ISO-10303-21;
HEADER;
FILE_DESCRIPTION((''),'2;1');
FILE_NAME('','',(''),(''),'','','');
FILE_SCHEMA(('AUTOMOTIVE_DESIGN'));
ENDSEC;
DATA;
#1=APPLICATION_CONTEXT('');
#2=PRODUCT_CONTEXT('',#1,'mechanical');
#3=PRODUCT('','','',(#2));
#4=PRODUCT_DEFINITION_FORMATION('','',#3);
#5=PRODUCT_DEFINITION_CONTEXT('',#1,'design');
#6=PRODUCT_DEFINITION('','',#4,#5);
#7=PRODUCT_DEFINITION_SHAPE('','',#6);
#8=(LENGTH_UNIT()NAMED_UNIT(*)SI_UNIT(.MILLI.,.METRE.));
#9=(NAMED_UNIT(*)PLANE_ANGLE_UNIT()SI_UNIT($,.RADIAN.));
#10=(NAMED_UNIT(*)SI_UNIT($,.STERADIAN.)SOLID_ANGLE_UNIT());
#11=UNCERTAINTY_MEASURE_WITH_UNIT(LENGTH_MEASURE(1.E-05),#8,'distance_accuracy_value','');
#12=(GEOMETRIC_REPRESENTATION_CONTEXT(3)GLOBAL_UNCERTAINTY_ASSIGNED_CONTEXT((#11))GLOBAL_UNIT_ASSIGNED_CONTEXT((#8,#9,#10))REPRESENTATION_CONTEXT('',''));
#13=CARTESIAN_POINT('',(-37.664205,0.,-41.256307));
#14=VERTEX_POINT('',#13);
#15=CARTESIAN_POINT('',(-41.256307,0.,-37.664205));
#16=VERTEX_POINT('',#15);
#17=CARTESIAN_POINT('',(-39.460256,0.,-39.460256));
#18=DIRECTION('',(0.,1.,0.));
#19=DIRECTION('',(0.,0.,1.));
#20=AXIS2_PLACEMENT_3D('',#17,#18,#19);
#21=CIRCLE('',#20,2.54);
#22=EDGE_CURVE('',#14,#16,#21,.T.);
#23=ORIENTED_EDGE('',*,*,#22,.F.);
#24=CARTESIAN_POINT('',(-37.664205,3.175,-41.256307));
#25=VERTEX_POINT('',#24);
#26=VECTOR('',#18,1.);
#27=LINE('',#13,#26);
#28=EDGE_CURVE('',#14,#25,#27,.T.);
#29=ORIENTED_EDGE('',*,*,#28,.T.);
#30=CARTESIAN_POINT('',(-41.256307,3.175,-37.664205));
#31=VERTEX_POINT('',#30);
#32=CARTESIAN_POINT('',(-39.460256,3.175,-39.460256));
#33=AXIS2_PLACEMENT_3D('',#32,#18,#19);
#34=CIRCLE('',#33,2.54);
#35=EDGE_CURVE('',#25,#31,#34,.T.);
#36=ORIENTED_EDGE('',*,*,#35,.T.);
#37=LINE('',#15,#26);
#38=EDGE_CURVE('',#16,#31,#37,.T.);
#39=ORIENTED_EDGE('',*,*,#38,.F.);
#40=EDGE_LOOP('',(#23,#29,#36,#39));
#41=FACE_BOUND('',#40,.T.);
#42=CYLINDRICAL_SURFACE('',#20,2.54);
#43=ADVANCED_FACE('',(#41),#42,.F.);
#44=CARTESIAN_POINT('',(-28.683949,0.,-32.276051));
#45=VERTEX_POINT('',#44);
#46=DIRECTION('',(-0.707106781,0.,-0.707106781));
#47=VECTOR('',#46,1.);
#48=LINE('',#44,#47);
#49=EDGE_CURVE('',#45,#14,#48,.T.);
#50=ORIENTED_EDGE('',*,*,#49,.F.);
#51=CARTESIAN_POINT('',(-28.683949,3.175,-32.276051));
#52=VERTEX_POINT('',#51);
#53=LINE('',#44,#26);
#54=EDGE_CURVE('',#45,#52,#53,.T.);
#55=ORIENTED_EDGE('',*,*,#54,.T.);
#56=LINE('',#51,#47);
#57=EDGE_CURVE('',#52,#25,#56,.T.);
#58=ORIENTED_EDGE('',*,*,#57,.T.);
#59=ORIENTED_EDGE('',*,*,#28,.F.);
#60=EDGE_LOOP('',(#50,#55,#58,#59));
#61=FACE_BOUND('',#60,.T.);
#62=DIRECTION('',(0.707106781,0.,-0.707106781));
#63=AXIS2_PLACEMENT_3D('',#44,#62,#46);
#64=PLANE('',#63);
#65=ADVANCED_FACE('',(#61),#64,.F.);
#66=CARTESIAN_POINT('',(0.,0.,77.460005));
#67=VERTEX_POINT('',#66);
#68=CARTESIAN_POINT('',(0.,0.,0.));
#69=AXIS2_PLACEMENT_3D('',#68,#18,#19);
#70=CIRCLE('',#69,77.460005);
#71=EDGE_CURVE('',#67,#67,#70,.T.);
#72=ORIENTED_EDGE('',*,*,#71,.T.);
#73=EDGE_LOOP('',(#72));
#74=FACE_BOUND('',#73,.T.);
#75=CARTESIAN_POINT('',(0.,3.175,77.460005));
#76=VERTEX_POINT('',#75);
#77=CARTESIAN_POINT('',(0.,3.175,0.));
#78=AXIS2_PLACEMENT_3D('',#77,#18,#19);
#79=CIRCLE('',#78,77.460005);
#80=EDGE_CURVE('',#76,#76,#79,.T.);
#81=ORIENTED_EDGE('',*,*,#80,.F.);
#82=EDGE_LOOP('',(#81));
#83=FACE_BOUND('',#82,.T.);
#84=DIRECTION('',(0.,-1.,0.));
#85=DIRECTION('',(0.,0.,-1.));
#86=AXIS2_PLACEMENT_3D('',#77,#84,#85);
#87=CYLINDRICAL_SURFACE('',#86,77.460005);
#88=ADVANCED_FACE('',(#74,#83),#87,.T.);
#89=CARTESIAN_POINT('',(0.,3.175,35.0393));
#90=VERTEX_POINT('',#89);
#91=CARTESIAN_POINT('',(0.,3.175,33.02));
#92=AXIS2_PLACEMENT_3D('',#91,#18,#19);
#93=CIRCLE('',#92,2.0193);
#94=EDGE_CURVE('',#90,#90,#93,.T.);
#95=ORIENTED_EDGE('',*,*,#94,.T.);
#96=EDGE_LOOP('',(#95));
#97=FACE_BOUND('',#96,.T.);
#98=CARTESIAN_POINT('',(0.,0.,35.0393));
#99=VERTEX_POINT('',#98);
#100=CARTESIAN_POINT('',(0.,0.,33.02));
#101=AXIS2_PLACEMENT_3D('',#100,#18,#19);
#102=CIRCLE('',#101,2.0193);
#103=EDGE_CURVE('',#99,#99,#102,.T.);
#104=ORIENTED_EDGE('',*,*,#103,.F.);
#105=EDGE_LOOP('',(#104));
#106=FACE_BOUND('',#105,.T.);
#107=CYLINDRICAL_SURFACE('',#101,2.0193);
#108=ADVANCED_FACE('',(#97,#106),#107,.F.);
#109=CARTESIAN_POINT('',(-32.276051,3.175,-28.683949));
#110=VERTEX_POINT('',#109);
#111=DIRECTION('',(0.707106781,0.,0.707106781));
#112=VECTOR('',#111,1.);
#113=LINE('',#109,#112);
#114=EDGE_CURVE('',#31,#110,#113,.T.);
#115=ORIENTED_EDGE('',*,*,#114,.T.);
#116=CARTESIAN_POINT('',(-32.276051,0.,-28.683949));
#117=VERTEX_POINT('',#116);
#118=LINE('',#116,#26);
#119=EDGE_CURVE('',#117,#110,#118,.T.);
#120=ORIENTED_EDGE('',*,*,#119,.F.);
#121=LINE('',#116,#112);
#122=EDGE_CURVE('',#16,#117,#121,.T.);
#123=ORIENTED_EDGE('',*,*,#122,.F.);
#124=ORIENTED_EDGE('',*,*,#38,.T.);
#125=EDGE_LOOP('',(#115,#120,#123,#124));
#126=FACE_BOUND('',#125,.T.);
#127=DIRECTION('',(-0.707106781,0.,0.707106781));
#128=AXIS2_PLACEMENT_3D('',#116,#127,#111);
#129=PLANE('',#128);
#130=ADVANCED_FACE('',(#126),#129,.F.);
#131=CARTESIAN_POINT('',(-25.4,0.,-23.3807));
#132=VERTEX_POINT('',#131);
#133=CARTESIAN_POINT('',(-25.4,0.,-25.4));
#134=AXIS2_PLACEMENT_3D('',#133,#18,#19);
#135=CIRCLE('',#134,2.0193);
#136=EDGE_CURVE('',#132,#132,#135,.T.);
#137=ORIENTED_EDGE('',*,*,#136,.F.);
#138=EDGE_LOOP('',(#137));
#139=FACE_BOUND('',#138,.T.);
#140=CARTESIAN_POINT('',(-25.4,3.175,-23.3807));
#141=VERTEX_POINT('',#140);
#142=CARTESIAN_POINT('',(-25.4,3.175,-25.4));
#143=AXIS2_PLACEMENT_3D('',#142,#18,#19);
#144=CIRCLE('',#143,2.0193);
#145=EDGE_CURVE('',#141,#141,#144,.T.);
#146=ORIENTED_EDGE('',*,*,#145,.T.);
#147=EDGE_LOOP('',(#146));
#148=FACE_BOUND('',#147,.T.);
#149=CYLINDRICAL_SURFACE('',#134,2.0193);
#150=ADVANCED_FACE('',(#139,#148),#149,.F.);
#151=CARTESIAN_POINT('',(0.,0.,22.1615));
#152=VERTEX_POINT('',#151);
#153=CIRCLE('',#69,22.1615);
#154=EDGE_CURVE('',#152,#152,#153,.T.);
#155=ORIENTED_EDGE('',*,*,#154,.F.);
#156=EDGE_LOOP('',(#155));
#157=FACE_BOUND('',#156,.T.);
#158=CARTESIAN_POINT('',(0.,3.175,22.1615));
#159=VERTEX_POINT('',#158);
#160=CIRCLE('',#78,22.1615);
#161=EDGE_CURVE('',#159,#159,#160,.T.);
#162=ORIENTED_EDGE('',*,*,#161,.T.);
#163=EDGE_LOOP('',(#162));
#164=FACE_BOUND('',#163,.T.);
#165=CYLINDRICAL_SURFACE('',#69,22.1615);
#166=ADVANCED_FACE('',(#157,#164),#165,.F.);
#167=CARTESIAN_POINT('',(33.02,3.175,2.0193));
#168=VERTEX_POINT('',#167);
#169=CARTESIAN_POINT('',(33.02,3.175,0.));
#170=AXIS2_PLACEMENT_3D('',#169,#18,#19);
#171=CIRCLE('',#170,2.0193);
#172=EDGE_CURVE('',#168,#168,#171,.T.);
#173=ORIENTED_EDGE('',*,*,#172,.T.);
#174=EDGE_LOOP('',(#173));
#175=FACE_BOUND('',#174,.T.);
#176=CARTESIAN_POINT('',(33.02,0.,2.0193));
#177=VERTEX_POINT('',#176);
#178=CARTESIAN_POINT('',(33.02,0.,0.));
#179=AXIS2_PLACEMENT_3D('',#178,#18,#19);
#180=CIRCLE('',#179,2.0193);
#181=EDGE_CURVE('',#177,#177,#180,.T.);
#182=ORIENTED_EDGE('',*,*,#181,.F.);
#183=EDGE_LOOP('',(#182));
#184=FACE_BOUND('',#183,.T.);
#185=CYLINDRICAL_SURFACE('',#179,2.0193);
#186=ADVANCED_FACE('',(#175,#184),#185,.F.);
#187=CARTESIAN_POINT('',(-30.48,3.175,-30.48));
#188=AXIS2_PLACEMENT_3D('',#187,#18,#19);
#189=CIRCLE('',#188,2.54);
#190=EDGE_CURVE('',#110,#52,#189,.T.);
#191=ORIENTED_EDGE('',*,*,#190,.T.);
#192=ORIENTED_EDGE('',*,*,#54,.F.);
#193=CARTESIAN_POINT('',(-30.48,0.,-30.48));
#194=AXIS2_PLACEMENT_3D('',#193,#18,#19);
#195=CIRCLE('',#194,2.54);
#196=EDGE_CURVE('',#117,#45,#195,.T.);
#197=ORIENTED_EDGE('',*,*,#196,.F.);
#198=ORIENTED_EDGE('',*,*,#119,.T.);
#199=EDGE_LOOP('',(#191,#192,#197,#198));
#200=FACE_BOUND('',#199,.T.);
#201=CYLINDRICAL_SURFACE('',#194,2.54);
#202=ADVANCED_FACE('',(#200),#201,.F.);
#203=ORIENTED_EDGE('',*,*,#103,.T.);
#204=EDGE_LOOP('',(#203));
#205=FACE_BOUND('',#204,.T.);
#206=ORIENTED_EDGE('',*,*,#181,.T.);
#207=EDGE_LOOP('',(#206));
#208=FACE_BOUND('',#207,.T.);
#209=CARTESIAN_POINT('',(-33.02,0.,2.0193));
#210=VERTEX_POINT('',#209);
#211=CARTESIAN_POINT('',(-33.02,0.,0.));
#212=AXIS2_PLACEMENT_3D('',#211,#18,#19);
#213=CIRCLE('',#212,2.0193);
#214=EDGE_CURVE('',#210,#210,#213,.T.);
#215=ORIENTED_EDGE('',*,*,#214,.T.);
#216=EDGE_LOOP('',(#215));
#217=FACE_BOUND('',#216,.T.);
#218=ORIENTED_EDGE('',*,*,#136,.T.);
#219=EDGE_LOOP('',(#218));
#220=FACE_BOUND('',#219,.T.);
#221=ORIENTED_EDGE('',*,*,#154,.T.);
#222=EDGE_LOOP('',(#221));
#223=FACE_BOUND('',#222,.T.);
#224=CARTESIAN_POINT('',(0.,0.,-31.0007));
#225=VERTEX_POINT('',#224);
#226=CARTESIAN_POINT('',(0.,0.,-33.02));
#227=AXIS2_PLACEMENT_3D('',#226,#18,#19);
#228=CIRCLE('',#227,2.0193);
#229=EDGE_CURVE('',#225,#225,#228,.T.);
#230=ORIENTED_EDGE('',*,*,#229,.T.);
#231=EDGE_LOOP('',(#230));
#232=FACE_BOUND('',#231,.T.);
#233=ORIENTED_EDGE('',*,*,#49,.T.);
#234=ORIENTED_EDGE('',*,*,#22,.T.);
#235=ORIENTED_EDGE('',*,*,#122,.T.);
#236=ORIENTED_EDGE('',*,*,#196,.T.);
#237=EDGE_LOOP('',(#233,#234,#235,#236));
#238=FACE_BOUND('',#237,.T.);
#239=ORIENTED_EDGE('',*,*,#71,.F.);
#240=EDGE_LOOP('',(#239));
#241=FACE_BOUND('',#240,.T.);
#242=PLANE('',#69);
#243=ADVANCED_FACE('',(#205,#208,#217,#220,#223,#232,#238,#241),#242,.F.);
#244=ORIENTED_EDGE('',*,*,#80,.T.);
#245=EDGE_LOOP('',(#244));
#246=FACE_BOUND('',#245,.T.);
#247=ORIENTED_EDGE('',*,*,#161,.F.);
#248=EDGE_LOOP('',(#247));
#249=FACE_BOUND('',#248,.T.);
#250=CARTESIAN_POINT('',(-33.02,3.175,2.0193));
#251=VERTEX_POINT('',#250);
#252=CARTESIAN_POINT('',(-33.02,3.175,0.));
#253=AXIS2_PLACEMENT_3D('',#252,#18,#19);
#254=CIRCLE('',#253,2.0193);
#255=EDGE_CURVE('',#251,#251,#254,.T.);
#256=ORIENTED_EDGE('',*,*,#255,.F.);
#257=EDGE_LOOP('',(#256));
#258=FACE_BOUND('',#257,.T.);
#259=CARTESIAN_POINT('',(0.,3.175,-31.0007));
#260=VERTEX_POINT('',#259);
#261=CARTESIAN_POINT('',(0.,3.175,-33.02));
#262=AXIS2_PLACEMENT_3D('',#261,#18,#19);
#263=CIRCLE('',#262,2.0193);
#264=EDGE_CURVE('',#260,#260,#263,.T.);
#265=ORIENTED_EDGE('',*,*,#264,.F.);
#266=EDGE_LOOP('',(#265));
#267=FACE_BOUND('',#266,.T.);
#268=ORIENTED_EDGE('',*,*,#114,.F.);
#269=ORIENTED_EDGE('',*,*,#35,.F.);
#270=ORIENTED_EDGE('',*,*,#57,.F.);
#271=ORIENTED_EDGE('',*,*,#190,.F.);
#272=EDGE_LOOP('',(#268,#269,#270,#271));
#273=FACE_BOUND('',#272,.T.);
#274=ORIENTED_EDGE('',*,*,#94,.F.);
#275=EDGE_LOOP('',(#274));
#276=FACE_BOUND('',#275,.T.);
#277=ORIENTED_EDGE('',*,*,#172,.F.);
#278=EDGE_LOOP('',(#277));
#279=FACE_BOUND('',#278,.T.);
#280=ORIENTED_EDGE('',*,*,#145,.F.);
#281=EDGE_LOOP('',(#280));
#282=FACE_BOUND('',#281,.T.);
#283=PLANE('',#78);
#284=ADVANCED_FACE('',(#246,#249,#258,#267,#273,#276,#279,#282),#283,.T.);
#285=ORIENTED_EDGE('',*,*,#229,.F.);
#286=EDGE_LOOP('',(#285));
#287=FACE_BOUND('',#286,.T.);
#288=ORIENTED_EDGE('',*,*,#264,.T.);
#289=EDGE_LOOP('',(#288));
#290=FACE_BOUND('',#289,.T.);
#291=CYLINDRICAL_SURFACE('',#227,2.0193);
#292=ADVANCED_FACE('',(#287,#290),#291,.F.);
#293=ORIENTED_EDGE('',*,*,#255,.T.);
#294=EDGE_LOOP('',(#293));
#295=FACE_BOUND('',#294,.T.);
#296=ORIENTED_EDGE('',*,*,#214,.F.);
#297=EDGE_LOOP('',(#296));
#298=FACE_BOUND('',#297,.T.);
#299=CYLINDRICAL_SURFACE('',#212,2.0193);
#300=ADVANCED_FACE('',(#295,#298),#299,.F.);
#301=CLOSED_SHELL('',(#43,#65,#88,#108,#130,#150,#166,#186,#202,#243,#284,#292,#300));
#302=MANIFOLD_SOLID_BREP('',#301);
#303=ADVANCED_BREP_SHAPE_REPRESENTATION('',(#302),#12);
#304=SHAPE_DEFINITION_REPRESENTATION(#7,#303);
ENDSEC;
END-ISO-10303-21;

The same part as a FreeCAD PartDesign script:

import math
import FreeCAD as App
import Part
import Sketcher

V = App.Vector
Q = App.Units.Quantity

doc = App.newDocument("Part")
body = doc.addObject("PartDesign::Body", "Body")

# Sketch on XZ plane
sketch1 = body.newObject("Sketcher::SketchObject", "Sketch")
sketch1.AttachmentSupport = (doc.getObject("XZ_Plane"), [""])
sketch1.MapMode = "FlatFace"
sketch1.addGeometry(Part.Circle(V(0, 0, 0), V(0, 0, 1), 77), False)
sketch1.addConstraint(Sketcher.Constraint("Coincident", 0, 3, -1, 1))
sketch1.addConstraint(Sketcher.Constraint("Diameter", 0, Q("154.92001 mm")))
pad1 = body.newObject("PartDesign::Pad", "Pad")
pad1.Profile = sketch1
pad1.Length = Q("0.125 in")
pad1.Reversed = True

# Sketch on XZ plane
sketch2 = body.newObject("Sketcher::SketchObject", "Sketch001")
sketch2.AttachmentSupport = (doc.getObject("XZ_Plane"), [""])
sketch2.MapMode = "FlatFace"
sketch2.AttachmentOffset = App.Placement(V(0, 0, -0.125 * 25.4), App.Rotation())
sketch2.addGeometry(Part.Circle(V(0, 0, 0), V(0, 0, 1), 22.2), False)
sketch2.addGeometry(Part.Circle(V(-25.4, -25.4, 0), V(0, 0, 1), 2), False)
sketch2.addGeometry(Part.Circle(V(0, -33, 0), V(0, 0, 1), 2), False)
sketch2.addGeometry(Part.Circle(V(33, 0, 0), V(0, 0, 1), 2), False)
sketch2.addGeometry(Part.Circle(V(0, 33, 0), V(0, 0, 1), 2), False)
sketch2.addGeometry(Part.Circle(V(-33, 0, 0), V(0, 0, 1), 2), False)
sketch2.addGeometry(Part.LineSegment(V(-41.3, -37.7, 0), V(-32.3, -28.7, 0)), False)
sketch2.addGeometry(Part.ArcOfCircle(Part.Circle(V(-30.5, -30.5, 0), V(0, 0, 1), 2.5), math.radians(-45), math.radians(135)), False)
sketch2.addGeometry(Part.LineSegment(V(-28.7, -32.3, 0), V(-37.7, -41.3, 0)), False)
sketch2.addGeometry(Part.ArcOfCircle(Part.Circle(V(-39.5, -39.5, 0), V(0, 0, 1), 2.5), math.radians(135), math.radians(315)), False)
sketch2.addConstraint(Sketcher.Constraint("Tangent", 6, 2, 7, 2))
sketch2.addConstraint(Sketcher.Constraint("Tangent", 7, 1, 8, 1))
sketch2.addConstraint(Sketcher.Constraint("Tangent", 8, 2, 9, 2))
sketch2.addConstraint(Sketcher.Constraint("Tangent", 9, 1, 6, 1))
sketch2.addConstraint(Sketcher.Constraint("Coincident", 0, 3, -1, 1))
sketch2.addConstraint(Sketcher.Constraint("Equal", 1, 2))
sketch2.addConstraint(Sketcher.Constraint("Equal", 2, 3))
sketch2.addConstraint(Sketcher.Constraint("Equal", 3, 4))
sketch2.addConstraint(Sketcher.Constraint("Equal", 4, 5))
sketch2.addConstraint(Sketcher.Constraint("Equal", 7, 9))
sketch2.addConstraint(Sketcher.Constraint("Symmetric", 2, 3, 4, 3, -1, 1))
sketch2.addConstraint(Sketcher.Constraint("Symmetric", 3, 3, 5, 3, -1, 1))
sketch2.addConstraint(Sketcher.Constraint("PointOnObject", 2, 3, -2))
sketch2.addConstraint(Sketcher.Constraint("PointOnObject", 3, 3, -1))
sketch2.addConstraint(Sketcher.Constraint("Radius", 7, Q("0.1 in")))
sketch2.addConstraint(Sketcher.Constraint("Diameter", 0, Q("1.745 in")))
sketch2.addConstraint(Sketcher.Constraint("Diameter", 1, Q("0.159 in")))
sketch2.addConstraint(Sketcher.Constraint("DistanceX", 1, 3, -1, 1, Q("1 in")))
sketch2.addConstraint(Sketcher.Constraint("DistanceY", 1, 3, -1, 1, Q("1 in")))
sketch2.addConstraint(Sketcher.Constraint("Angle", 6, Q("45 deg")))
sketch2.addConstraint(Sketcher.Constraint("Distance", 6, Q("0.5 in")))
sketch2.addConstraint(Sketcher.Constraint("DistanceY", 2, 3, -1, 1, Q("1.3 in")))
sketch2.addConstraint(Sketcher.Constraint("DistanceX", -1, 1, 3, 3, Q("1.3 in")))
sketch2.addConstraint(Sketcher.Constraint("DistanceX", 7, 3, -1, 1, Q("1.2 in")))
sketch2.addConstraint(Sketcher.Constraint("DistanceY", 7, 3, -1, 1, Q("1.2 in")))
pocket1 = body.newObject("PartDesign::Pocket", "Pocket")
pocket1.Profile = sketch2
pocket1.Type = "ThroughAll"
pocket1.Reversed = True

doc.recompute()
